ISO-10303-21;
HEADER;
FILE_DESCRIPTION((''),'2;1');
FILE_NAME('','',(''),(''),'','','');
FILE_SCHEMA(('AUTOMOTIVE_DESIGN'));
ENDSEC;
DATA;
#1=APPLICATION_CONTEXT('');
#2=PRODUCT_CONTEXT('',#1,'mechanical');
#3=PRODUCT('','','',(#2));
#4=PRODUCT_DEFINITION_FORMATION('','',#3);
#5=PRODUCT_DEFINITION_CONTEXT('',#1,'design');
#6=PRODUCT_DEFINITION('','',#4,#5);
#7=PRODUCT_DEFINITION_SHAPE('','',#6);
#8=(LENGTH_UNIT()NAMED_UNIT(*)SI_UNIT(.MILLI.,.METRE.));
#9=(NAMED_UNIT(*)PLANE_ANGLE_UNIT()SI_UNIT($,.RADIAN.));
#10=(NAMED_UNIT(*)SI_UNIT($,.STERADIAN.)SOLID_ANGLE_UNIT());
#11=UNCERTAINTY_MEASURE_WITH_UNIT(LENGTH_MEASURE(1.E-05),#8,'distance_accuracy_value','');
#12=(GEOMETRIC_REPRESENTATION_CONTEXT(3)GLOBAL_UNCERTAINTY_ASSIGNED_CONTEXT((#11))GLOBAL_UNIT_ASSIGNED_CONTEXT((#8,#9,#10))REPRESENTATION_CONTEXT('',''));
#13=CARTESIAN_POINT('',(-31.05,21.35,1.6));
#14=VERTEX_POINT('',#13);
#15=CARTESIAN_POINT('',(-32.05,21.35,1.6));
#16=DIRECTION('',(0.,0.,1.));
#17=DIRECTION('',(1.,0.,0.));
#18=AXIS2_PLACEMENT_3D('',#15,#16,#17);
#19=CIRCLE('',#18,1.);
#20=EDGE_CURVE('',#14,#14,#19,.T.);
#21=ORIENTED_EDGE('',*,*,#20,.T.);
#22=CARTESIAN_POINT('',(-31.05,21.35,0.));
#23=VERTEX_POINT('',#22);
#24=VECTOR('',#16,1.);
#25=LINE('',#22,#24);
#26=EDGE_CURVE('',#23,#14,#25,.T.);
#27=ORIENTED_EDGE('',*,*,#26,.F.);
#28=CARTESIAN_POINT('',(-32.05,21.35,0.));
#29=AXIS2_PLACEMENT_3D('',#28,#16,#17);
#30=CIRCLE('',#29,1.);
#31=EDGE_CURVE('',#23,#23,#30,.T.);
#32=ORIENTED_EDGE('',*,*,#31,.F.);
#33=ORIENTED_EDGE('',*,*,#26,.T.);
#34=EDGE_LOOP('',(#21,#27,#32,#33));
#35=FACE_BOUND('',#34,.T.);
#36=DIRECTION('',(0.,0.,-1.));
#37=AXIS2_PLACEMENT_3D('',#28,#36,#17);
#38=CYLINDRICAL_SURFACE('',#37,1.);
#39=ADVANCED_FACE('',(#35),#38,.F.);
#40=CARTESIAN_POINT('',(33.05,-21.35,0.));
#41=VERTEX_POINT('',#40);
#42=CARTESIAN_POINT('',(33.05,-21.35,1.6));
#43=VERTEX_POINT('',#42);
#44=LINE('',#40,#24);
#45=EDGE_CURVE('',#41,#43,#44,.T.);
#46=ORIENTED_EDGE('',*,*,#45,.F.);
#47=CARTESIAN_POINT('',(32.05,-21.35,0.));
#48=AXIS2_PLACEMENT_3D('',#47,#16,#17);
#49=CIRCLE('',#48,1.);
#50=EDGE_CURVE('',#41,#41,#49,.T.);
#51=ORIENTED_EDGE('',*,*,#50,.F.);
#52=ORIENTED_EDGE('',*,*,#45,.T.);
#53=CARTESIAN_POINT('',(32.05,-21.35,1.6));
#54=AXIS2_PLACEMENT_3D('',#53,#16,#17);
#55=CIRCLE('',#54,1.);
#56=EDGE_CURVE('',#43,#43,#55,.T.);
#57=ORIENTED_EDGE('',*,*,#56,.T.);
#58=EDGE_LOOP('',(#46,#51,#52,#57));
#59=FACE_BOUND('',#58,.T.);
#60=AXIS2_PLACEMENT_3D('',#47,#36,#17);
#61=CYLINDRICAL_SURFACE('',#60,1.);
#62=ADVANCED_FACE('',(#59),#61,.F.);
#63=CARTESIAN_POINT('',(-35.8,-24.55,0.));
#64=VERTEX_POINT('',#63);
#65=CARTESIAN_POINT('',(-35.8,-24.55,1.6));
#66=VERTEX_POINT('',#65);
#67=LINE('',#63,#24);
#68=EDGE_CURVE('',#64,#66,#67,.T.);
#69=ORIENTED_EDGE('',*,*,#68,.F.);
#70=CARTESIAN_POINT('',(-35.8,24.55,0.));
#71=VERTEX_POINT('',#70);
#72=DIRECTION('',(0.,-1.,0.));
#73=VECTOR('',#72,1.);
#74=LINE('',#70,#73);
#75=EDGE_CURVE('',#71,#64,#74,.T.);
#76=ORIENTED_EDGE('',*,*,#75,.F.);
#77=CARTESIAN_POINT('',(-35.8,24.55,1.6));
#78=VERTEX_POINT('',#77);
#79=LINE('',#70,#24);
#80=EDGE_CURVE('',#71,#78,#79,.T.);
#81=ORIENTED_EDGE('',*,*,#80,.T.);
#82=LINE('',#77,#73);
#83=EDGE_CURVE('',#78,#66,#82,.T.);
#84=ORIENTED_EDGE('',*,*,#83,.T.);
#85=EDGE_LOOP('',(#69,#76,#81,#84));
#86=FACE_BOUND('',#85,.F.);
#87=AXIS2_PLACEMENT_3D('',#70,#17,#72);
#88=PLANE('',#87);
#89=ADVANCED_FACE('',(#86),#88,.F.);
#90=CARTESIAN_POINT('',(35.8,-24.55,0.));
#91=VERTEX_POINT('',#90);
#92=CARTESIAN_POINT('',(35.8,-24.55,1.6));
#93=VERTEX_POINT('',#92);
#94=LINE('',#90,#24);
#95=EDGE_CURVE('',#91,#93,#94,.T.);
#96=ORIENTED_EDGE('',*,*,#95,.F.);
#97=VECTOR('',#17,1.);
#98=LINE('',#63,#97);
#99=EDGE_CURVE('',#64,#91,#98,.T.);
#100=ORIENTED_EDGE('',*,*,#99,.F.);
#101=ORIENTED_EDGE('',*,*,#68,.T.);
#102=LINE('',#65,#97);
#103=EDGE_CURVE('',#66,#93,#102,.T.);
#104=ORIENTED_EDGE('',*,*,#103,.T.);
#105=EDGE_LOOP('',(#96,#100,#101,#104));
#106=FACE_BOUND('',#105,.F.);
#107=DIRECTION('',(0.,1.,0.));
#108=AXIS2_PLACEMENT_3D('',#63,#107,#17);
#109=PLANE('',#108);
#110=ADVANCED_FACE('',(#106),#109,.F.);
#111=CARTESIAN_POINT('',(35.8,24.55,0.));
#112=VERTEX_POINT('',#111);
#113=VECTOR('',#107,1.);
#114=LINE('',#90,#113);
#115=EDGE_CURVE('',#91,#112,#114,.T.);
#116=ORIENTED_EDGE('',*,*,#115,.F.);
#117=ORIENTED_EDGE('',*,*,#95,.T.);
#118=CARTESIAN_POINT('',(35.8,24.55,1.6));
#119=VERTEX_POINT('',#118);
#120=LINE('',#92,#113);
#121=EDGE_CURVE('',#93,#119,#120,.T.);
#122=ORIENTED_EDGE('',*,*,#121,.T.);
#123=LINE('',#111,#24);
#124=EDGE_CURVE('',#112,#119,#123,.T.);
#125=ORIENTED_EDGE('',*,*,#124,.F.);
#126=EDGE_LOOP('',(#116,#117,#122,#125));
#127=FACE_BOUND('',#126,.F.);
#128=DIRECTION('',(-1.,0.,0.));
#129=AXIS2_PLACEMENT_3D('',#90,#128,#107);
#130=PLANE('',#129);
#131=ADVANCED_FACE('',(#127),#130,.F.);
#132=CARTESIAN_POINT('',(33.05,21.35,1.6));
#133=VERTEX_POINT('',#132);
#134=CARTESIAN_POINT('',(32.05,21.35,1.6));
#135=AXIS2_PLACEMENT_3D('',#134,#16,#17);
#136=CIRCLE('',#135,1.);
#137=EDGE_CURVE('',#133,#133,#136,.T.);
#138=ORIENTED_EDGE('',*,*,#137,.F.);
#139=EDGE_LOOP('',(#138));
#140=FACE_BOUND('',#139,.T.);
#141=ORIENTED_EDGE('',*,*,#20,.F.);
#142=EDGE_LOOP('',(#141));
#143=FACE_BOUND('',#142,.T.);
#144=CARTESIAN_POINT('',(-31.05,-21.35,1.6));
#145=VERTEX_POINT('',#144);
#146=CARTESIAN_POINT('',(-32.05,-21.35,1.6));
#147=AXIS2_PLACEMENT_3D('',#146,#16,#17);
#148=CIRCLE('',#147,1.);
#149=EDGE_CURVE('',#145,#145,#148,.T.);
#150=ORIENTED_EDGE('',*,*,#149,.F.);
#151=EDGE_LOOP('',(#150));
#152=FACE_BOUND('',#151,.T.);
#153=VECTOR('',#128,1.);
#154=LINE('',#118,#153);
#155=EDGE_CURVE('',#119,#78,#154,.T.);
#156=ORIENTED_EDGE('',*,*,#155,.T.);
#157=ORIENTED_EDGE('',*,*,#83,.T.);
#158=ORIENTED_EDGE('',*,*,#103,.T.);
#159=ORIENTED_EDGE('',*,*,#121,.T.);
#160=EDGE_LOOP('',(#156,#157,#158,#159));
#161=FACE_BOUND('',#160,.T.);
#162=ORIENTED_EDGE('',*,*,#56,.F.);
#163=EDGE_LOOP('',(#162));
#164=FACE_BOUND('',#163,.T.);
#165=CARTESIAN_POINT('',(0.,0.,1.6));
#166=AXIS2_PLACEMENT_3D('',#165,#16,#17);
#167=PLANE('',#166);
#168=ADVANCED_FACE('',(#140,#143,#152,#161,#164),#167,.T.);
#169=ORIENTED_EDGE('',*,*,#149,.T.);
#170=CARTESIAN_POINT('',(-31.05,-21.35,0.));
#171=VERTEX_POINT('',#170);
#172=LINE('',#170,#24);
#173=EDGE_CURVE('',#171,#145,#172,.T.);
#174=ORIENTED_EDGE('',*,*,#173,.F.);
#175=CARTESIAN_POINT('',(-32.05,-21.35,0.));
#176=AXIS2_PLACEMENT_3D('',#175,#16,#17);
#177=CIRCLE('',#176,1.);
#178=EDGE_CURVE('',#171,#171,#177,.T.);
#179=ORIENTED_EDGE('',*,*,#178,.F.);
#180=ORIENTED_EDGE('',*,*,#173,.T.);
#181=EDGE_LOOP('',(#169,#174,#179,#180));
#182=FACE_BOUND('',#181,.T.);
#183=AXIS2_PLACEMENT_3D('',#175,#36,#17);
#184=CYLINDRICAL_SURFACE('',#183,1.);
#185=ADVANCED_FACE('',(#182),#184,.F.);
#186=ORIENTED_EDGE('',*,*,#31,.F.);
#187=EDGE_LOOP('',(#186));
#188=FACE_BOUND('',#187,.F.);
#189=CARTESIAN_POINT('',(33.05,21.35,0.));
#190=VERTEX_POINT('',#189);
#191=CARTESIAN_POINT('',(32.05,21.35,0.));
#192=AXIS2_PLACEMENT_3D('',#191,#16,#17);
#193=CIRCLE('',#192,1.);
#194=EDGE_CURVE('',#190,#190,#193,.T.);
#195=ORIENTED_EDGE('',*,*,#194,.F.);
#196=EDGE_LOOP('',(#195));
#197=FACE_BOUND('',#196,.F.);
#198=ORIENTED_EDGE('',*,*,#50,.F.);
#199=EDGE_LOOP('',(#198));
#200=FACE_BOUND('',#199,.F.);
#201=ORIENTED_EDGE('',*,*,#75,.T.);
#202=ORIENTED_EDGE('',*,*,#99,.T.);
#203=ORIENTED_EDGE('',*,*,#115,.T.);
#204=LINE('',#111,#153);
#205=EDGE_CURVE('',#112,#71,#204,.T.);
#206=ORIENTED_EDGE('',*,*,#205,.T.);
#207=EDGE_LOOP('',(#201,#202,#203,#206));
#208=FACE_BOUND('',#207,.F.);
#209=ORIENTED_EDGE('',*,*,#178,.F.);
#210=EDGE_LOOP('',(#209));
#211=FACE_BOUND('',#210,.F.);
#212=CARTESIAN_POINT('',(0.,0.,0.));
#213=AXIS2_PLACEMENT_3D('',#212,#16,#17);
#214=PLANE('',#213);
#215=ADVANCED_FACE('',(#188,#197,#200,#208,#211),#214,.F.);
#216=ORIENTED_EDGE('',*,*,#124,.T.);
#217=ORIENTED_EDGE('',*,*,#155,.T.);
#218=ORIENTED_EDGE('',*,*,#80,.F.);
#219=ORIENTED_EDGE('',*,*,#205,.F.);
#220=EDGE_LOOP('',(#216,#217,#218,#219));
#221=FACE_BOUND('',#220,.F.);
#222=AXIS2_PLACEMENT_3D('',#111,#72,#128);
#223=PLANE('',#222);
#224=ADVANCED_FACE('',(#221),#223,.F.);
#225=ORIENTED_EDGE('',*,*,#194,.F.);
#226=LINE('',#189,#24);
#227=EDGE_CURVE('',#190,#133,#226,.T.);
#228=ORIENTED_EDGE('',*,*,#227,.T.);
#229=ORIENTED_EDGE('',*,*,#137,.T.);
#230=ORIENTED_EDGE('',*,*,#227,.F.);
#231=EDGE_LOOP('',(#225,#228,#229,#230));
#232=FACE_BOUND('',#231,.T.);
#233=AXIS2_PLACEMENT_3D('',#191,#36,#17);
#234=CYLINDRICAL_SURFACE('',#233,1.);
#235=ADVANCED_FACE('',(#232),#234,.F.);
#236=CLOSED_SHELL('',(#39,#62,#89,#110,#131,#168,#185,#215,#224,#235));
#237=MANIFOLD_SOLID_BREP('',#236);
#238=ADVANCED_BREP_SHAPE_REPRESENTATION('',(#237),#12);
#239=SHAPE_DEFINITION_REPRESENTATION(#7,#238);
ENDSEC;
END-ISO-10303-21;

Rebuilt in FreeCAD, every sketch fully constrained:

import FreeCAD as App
import Part
import Sketcher

V = App.Vector
Q = App.Units.Quantity


def add_polygon(sketch, points):
    """Adds a closed chain of lines whose ends are joined by coincident constraints."""
    first, n = sketch.GeometryCount, len(points)
    for a, b in zip(points, points[1:] + points[:1]):
        sketch.addGeometry(Part.LineSegment(App.Vector(*a, 0), App.Vector(*b, 0)), False)
    for i in range(n):
        sketch.addConstraint(Sketcher.Constraint("Coincident", first + i, 2, first + (i + 1) % n, 1))

doc = App.newDocument("Part")
body = doc.addObject("PartDesign::Body", "Body")

sketch1 = body.newObject("Sketcher::SketchObject", "Sketch")
sketch1.AttachmentSupport = (doc.getObject("XY_Plane"), [""])
sketch1.MapMode = "FlatFace"
add_polygon(sketch1, [(-35.8, 24.6), (-35.8, -24.6), (35.8, -24.6), (35.8, 24.6)])
sketch1.addGeometry(Part.Circle(V(-32, -21.4, 0), V(0, 0, 1), 1), False)
sketch1.addGeometry(Part.Circle(V(32, -21.4, 0), V(0, 0, 1), 1), False)
sketch1.addGeometry(Part.Circle(V(-32, 21.4, 0), V(0, 0, 1), 1), False)
sketch1.addGeometry(Part.Circle(V(32, 21.4, 0), V(0, 0, 1), 1), False)
sketch1.addConstraint([
    Sketcher.Constraint("Vertical", 0),
    Sketcher.Constraint("Horizontal", 1),
    Sketcher.Constraint("Vertical", 2),
    Sketcher.Constraint("Horizontal", 3),
    Sketcher.Constraint("Equal", 4, 5),
    Sketcher.Constraint("Equal", 5, 6),
    Sketcher.Constraint("Equal", 6, 7),
    Sketcher.Constraint("Symmetric", 5, 3, 6, 3, -1, 1),
    Sketcher.Constraint("Symmetric", 4, 3, 7, 3, -1, 1),
    Sketcher.Constraint("Symmetric", 0, 2, 2, 2, -1, 1),
    Sketcher.Constraint("Symmetric", 4, 3, 5, 3, -2),
    Sketcher.Constraint("Diameter", 4, Q("2 mm")),
    Sketcher.Constraint("DistanceX", 1, 1, 1, 2, Q("71.6 mm")),
    Sketcher.Constraint("DistanceY", 0, 2, 0, 1, Q("49.1 mm")),
    Sketcher.Constraint("DistanceX", 4, 3, 5, 3, Q("64.1 mm")),
    Sketcher.Constraint("DistanceY", 4, 3, 6, 3, Q("42.7 mm")),
])
pad1 = body.newObject("PartDesign::Pad", "Pad")
pad1.Profile = sketch1
pad1.Length = 1.6

doc.recompute()
